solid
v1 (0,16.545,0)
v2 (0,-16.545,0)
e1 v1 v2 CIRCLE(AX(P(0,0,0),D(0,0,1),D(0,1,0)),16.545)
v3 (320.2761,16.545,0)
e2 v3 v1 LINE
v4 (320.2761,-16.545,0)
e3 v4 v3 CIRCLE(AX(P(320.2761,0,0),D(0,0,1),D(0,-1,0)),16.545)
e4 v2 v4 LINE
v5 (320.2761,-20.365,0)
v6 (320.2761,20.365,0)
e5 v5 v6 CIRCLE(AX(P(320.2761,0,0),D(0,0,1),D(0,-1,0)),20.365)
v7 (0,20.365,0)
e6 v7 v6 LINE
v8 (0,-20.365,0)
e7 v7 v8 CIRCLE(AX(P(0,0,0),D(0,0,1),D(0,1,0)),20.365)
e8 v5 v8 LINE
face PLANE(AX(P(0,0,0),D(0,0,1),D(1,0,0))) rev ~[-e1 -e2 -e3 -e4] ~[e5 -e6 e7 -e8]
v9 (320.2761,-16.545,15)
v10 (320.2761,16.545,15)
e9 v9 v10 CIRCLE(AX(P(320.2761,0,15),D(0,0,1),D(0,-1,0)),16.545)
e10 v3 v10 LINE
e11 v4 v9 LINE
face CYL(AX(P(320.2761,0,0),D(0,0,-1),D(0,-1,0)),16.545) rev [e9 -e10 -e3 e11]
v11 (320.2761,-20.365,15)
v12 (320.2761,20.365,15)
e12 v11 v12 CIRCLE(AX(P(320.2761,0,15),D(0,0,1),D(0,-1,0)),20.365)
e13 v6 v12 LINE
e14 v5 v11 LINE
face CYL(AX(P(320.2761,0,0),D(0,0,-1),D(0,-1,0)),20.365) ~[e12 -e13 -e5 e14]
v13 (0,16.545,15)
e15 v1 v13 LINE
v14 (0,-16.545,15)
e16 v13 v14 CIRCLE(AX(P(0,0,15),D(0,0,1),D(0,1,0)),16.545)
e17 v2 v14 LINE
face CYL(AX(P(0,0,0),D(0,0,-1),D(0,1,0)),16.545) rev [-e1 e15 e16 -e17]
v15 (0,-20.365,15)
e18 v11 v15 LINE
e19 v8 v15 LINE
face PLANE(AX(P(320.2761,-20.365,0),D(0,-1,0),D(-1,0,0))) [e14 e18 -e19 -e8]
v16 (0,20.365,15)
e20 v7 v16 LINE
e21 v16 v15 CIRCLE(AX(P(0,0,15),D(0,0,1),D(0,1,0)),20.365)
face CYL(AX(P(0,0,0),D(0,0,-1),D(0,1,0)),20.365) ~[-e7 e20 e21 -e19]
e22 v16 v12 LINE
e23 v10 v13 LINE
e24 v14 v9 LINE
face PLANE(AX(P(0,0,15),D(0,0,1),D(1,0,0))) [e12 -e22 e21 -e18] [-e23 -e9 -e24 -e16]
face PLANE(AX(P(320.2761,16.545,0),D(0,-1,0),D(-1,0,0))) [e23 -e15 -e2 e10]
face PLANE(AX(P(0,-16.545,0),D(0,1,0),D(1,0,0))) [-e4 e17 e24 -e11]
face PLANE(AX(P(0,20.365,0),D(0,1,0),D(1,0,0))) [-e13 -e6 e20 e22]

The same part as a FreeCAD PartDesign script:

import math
import FreeCAD as App
import Part
import Sketcher
from FreeCAD import Vector
Q = App.Units.Quantity

doc = App.newDocument("Part")
params = doc.addObject("Spreadsheet::Sheet", "Params")
for row, (alias, value) in enumerate([
    ("pad1_length", "15 mm"),
], start=1):
    params.set(f"A{row}", alias)
    params.set(f"B{row}", "=" + value)
    params.setAlias(f"B{row}", alias)

body = doc.addObject("PartDesign::Body", "Body")

sketch1 = doc.addObject("Sketcher::SketchObject", "Sketch")
body.addObject(sketch1)
sketch1.AttachmentSupport = (doc.XY_Plane, [""])
sketch1.MapMode = "FlatFace"
sketch1.addGeometry(Part.LineSegment(Vector(0, -20, 0), Vector(320, -20, 0)), False)
sketch1.addGeometry(Part.ArcOfCircle(Part.Circle(Vector(320, 0, 0), Vector(0, 0, 1), 20), math.radians(-90), math.radians(90)), False)
sketch1.addGeometry(Part.LineSegment(Vector(320, 20, 0), Vector(0, 20, 0)), False)
sketch1.addGeometry(Part.ArcOfCircle(Part.Circle(Vector(0, 0, 0), Vector(0, 0, 1), 20), math.radians(90), math.radians(270)), False)
sketch1.addGeometry(Part.LineSegment(Vector(320, -17, 0), Vector(0, -17, 0)), False)
sketch1.addGeometry(Part.ArcOfCircle(Part.Circle(Vector(0, 0, 0), Vector(0, 0, 1), 17), math.radians(90), math.radians(270)), False)
sketch1.addGeometry(Part.LineSegment(Vector(0, 17, 0), Vector(320, 17, 0)), False)
sketch1.addGeometry(Part.ArcOfCircle(Part.Circle(Vector(320, 0, 0), Vector(0, 0, 1), 17), math.radians(-90), math.radians(90)), False)
sketch1.addConstraint(Sketcher.Constraint("Tangent", 0, 2, 1, 1))
sketch1.addConstraint(Sketcher.Constraint("Tangent", 1, 2, 2, 1))
sketch1.addConstraint(Sketcher.Constraint("Tangent", 2, 2, 3, 1))
sketch1.addConstraint(Sketcher.Constraint("Tangent", 3, 2, 0, 1))
sketch1.addConstraint(Sketcher.Constraint("Tangent", 4, 2, 5, 2))
sketch1.addConstraint(Sketcher.Constraint("Tangent", 5, 1, 6, 1))
sketch1.addConstraint(Sketcher.Constraint("Tangent", 6, 2, 7, 2))
sketch1.addConstraint(Sketcher.Constraint("Tangent", 7, 1, 4, 1))
sketch1.addConstraint(Sketcher.Constraint("Horizontal", 0))
sketch1.addConstraint(Sketcher.Constraint("Horizontal", 2))
sketch1.addConstraint(Sketcher.Constraint("Horizontal", 4))
sketch1.addConstraint(Sketcher.Constraint("Horizontal", 6))
sketch1.addConstraint(Sketcher.Constraint("Coincident", 3, 3, -1, 1))
sketch1.addConstraint(Sketcher.Constraint("Coincident", 5, 3, -1, 1))
sketch1.addConstraint(Sketcher.Constraint("Vertical", 7, 3, 0, 2))
sketch1.addConstraint(Sketcher.Constraint("Radius", 5, Q("16.545 mm")))
sketch1.addConstraint(Sketcher.Constraint("DistanceX", 0, 1, 0, 2, Q("320.276 mm")))
sketch1.addConstraint(Sketcher.Constraint("DistanceY", 3, 2, 4, 2, Q("3.82 mm")))
pad1 = doc.addObject("PartDesign::Pad", "Pad")
body.addObject(pad1)
pad1.Profile = sketch1
pad1.setExpression("Length", "Params.pad1_length")

doc.recompute()
